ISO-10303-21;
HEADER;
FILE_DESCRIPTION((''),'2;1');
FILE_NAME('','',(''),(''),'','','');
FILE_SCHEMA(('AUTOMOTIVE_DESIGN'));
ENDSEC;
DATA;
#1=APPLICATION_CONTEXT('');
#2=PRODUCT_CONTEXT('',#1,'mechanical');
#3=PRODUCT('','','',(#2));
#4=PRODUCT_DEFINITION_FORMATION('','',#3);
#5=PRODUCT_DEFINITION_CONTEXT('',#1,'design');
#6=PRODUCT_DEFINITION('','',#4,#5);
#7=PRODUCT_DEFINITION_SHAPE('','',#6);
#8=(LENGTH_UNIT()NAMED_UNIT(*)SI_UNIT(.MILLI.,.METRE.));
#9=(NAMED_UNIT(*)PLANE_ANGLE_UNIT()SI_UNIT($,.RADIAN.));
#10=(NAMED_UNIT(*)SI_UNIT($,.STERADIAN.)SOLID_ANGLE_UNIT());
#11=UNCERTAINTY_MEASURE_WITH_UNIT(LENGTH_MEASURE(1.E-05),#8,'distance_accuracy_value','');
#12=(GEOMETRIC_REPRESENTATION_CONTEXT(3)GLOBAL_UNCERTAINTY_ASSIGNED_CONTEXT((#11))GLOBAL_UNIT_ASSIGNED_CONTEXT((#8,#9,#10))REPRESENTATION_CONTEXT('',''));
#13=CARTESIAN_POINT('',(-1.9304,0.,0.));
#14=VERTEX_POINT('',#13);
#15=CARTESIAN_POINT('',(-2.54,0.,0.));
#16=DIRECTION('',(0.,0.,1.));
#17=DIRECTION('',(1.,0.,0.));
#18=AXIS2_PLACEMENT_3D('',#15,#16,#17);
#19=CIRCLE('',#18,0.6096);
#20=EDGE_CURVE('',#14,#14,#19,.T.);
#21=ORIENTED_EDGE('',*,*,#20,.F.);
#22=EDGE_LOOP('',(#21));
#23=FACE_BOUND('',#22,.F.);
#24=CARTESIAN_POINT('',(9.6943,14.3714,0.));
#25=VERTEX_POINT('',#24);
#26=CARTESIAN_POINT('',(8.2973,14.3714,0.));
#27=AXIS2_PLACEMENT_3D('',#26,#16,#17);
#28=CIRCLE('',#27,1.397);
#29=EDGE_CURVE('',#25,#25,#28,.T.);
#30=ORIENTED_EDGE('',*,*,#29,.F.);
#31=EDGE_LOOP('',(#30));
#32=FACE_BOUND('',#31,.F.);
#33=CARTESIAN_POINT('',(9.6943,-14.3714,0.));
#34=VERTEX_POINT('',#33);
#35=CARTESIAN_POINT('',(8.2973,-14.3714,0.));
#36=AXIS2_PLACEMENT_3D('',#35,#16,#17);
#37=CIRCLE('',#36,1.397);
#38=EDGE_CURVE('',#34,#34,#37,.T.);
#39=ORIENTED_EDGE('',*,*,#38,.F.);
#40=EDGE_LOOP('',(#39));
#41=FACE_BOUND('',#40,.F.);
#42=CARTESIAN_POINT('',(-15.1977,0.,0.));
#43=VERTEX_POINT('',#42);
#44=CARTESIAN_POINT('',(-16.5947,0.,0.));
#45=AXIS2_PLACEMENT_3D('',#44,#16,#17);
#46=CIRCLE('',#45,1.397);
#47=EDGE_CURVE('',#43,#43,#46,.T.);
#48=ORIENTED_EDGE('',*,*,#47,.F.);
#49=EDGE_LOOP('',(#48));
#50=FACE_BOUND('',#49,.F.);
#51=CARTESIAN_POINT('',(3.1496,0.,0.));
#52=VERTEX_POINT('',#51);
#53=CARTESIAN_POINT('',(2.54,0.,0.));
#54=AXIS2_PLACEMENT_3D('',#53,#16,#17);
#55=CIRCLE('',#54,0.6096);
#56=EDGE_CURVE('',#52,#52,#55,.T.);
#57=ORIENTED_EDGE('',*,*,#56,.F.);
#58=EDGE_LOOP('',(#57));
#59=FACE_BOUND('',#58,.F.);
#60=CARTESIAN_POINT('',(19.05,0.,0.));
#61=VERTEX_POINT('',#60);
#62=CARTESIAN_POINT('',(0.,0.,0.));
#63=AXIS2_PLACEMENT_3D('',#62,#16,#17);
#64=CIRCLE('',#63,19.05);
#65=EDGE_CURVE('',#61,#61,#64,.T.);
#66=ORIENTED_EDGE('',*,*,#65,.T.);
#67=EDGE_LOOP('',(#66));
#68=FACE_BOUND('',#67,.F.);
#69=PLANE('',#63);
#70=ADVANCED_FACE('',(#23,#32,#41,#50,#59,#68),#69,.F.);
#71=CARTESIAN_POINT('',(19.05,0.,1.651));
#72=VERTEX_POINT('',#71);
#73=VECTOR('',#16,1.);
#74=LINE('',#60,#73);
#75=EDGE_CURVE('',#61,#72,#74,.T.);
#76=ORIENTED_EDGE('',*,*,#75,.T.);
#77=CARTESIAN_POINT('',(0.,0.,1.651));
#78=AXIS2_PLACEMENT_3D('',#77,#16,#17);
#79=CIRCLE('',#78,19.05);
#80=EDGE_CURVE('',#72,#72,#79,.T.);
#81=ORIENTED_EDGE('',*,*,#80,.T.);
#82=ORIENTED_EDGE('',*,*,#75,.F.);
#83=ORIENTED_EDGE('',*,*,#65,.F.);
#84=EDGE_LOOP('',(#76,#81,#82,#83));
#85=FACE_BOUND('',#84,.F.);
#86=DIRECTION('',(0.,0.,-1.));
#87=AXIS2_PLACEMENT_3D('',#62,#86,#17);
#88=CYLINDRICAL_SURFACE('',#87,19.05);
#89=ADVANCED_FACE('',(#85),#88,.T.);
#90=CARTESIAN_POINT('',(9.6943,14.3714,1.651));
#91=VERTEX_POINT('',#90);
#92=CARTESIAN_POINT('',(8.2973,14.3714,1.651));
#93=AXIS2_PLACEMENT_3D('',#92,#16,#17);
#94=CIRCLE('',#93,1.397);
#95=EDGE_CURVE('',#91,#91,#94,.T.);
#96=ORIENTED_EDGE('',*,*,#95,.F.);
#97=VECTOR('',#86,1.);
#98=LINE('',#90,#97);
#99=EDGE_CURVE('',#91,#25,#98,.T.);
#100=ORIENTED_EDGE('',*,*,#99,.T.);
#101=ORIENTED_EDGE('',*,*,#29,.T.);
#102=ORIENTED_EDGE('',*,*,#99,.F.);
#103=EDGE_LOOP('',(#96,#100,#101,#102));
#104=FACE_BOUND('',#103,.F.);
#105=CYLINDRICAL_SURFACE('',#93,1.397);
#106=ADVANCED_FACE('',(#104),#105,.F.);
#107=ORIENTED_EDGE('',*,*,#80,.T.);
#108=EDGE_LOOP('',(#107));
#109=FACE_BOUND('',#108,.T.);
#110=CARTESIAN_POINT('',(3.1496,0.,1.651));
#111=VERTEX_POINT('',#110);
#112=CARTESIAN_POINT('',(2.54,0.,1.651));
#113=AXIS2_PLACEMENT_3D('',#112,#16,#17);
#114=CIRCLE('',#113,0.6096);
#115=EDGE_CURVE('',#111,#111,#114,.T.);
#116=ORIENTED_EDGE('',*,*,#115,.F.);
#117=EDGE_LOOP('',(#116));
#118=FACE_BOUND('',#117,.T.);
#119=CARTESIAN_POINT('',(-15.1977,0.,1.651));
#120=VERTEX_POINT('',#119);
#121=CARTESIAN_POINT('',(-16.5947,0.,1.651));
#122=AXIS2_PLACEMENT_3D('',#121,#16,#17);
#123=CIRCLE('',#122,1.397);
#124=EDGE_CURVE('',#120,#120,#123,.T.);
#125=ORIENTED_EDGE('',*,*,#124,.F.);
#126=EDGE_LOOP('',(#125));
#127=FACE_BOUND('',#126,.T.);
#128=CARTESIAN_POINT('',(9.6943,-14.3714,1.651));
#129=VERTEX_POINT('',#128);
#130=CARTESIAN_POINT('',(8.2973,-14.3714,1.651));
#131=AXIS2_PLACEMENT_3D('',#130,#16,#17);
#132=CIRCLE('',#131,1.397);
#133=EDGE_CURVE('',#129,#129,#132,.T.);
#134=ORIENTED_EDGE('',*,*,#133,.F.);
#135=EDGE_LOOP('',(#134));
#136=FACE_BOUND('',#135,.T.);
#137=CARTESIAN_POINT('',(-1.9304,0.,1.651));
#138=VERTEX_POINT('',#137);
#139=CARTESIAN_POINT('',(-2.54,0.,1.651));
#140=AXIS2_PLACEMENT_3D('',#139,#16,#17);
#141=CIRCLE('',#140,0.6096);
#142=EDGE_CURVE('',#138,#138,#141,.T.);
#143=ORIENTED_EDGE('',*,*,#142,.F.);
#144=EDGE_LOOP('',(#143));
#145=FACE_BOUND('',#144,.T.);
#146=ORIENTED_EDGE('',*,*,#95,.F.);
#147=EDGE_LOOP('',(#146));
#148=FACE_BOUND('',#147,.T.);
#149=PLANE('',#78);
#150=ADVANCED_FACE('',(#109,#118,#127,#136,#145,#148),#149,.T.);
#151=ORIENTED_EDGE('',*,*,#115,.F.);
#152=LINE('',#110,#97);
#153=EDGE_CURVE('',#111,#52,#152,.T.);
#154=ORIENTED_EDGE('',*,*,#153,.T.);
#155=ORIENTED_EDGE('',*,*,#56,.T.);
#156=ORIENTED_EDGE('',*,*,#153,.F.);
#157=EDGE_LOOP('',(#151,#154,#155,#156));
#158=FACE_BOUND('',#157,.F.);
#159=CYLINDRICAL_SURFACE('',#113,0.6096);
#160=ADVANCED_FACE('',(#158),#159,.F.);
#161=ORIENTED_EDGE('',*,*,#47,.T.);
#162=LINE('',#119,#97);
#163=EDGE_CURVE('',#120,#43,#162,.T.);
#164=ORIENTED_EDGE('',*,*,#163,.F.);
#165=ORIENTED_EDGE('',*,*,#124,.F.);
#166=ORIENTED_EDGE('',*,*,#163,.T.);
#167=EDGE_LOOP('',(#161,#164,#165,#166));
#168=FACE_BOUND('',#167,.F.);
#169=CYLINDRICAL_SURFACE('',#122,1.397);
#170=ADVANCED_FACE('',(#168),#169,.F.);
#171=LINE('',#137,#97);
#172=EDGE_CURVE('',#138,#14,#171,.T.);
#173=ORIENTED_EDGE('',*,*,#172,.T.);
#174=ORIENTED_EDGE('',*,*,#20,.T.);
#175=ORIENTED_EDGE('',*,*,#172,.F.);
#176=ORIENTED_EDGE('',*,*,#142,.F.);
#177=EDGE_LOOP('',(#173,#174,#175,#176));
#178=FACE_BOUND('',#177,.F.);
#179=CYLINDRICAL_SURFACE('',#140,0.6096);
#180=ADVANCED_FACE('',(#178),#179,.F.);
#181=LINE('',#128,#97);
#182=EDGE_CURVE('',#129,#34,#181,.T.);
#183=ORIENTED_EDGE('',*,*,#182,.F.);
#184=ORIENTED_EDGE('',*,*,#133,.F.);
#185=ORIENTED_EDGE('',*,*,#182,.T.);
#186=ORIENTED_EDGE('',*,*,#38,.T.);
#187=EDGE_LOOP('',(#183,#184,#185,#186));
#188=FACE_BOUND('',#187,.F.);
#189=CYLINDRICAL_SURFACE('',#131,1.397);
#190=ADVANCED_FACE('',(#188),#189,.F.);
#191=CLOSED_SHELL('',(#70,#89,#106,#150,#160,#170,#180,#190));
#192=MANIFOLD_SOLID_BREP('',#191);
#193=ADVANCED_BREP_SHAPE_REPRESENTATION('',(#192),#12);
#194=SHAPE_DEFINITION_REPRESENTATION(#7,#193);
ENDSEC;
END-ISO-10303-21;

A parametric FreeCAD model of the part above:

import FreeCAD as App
import Part
import Sketcher

V = App.Vector
Q = App.Units.Quantity

doc = App.newDocument("Part")
body = doc.addObject("PartDesign::Body", "Body")

# Sketch on XY plane
sketch1 = body.newObject("Sketcher::SketchObject", "Sketch")
sketch1.AttachmentSupport = (doc.getObject("XY_Plane"), [""])
sketch1.MapMode = "FlatFace"
sketch1.addGeometry(Part.Circle(V(0, 0, 0), V(0, 0, 1), 19.05), False)
sketch1.addConstraint(Sketcher.Constraint("Coincident", 0, 3, -1, 1))
sketch1.addConstraint(Sketcher.Constraint("Diameter", 0, Q("1.5 in")))
pad1 = body.newObject("PartDesign::Pad", "Pad")
pad1.Profile = sketch1
pad1.Length = Q("0.065 in")

# Sketch on XY plane
sketch2 = body.newObject("Sketcher::SketchObject", "Sketch001")
sketch2.AttachmentSupport = (doc.getObject("XY_Plane"), [""])
sketch2.MapMode = "FlatFace"
sketch2.AttachmentOffset = App.Placement(V(0, 0, 0.065 * 25.4), App.Rotation())
sketch2.addGeometry(Part.Circle(V(-16.5947, 0, 0), V(0, 0, 1), 1.397), False)
sketch2.addGeometry(Part.Circle(V(8.2973, 14.3714, 0), V(0, 0, 1), 1.397), False)
sketch2.addGeometry(Part.Circle(V(8.2973, -14.3714, 0), V(0, 0, 1), 1.397), False)
sketch2.addGeometry(Part.Circle(V(-2.54, 0, 0), V(0, 0, 1), 0.6096), False)
sketch2.addGeometry(Part.Circle(V(2.54, 0, 0), V(0, 0, 1), 0.6096), False)
sketch2.addConstraint(Sketcher.Constraint("Equal", 0, 1))
sketch2.addConstraint(Sketcher.Constraint("Equal", 1, 2))
sketch2.addConstraint(Sketcher.Constraint("Equal", 3, 4))
sketch2.addConstraint(Sketcher.Constraint("Symmetric", 3, 3, 4, 3, -1, 1))
sketch2.addConstraint(Sketcher.Constraint("Symmetric", 1, 3, 2, 3, -1))
sketch2.addConstraint(Sketcher.Constraint("PointOnObject", 0, 3, -1))
sketch2.addConstraint(Sketcher.Constraint("PointOnObject", 3, 3, -1))
sketch2.addConstraint(Sketcher.Constraint("Diameter", 0, Q("0.11 in")))
sketch2.addConstraint(Sketcher.Constraint("Diameter", 3, Q("0.048 in")))
sketch2.addConstraint(Sketcher.Constraint("DistanceX", 3, 3, -1, 1, Q("0.1 in")))
sketch2.addConstraint(Sketcher.Constraint("DistanceX", 0, 3, 1, 3, Q("0.98 in")))
sketch2.addConstraint(Sketcher.Constraint("DistanceY", -1, 1, 1, 3, Q("0.5658 in")))
sketch2.addConstraint(Sketcher.Constraint("DistanceX", 0, 3, -1, 1, 16.5947))
pocket1 = body.newObject("PartDesign::Pocket", "Pocket")
pocket1.Profile = sketch2
pocket1.Type = "ThroughAll"

doc.recompute()
